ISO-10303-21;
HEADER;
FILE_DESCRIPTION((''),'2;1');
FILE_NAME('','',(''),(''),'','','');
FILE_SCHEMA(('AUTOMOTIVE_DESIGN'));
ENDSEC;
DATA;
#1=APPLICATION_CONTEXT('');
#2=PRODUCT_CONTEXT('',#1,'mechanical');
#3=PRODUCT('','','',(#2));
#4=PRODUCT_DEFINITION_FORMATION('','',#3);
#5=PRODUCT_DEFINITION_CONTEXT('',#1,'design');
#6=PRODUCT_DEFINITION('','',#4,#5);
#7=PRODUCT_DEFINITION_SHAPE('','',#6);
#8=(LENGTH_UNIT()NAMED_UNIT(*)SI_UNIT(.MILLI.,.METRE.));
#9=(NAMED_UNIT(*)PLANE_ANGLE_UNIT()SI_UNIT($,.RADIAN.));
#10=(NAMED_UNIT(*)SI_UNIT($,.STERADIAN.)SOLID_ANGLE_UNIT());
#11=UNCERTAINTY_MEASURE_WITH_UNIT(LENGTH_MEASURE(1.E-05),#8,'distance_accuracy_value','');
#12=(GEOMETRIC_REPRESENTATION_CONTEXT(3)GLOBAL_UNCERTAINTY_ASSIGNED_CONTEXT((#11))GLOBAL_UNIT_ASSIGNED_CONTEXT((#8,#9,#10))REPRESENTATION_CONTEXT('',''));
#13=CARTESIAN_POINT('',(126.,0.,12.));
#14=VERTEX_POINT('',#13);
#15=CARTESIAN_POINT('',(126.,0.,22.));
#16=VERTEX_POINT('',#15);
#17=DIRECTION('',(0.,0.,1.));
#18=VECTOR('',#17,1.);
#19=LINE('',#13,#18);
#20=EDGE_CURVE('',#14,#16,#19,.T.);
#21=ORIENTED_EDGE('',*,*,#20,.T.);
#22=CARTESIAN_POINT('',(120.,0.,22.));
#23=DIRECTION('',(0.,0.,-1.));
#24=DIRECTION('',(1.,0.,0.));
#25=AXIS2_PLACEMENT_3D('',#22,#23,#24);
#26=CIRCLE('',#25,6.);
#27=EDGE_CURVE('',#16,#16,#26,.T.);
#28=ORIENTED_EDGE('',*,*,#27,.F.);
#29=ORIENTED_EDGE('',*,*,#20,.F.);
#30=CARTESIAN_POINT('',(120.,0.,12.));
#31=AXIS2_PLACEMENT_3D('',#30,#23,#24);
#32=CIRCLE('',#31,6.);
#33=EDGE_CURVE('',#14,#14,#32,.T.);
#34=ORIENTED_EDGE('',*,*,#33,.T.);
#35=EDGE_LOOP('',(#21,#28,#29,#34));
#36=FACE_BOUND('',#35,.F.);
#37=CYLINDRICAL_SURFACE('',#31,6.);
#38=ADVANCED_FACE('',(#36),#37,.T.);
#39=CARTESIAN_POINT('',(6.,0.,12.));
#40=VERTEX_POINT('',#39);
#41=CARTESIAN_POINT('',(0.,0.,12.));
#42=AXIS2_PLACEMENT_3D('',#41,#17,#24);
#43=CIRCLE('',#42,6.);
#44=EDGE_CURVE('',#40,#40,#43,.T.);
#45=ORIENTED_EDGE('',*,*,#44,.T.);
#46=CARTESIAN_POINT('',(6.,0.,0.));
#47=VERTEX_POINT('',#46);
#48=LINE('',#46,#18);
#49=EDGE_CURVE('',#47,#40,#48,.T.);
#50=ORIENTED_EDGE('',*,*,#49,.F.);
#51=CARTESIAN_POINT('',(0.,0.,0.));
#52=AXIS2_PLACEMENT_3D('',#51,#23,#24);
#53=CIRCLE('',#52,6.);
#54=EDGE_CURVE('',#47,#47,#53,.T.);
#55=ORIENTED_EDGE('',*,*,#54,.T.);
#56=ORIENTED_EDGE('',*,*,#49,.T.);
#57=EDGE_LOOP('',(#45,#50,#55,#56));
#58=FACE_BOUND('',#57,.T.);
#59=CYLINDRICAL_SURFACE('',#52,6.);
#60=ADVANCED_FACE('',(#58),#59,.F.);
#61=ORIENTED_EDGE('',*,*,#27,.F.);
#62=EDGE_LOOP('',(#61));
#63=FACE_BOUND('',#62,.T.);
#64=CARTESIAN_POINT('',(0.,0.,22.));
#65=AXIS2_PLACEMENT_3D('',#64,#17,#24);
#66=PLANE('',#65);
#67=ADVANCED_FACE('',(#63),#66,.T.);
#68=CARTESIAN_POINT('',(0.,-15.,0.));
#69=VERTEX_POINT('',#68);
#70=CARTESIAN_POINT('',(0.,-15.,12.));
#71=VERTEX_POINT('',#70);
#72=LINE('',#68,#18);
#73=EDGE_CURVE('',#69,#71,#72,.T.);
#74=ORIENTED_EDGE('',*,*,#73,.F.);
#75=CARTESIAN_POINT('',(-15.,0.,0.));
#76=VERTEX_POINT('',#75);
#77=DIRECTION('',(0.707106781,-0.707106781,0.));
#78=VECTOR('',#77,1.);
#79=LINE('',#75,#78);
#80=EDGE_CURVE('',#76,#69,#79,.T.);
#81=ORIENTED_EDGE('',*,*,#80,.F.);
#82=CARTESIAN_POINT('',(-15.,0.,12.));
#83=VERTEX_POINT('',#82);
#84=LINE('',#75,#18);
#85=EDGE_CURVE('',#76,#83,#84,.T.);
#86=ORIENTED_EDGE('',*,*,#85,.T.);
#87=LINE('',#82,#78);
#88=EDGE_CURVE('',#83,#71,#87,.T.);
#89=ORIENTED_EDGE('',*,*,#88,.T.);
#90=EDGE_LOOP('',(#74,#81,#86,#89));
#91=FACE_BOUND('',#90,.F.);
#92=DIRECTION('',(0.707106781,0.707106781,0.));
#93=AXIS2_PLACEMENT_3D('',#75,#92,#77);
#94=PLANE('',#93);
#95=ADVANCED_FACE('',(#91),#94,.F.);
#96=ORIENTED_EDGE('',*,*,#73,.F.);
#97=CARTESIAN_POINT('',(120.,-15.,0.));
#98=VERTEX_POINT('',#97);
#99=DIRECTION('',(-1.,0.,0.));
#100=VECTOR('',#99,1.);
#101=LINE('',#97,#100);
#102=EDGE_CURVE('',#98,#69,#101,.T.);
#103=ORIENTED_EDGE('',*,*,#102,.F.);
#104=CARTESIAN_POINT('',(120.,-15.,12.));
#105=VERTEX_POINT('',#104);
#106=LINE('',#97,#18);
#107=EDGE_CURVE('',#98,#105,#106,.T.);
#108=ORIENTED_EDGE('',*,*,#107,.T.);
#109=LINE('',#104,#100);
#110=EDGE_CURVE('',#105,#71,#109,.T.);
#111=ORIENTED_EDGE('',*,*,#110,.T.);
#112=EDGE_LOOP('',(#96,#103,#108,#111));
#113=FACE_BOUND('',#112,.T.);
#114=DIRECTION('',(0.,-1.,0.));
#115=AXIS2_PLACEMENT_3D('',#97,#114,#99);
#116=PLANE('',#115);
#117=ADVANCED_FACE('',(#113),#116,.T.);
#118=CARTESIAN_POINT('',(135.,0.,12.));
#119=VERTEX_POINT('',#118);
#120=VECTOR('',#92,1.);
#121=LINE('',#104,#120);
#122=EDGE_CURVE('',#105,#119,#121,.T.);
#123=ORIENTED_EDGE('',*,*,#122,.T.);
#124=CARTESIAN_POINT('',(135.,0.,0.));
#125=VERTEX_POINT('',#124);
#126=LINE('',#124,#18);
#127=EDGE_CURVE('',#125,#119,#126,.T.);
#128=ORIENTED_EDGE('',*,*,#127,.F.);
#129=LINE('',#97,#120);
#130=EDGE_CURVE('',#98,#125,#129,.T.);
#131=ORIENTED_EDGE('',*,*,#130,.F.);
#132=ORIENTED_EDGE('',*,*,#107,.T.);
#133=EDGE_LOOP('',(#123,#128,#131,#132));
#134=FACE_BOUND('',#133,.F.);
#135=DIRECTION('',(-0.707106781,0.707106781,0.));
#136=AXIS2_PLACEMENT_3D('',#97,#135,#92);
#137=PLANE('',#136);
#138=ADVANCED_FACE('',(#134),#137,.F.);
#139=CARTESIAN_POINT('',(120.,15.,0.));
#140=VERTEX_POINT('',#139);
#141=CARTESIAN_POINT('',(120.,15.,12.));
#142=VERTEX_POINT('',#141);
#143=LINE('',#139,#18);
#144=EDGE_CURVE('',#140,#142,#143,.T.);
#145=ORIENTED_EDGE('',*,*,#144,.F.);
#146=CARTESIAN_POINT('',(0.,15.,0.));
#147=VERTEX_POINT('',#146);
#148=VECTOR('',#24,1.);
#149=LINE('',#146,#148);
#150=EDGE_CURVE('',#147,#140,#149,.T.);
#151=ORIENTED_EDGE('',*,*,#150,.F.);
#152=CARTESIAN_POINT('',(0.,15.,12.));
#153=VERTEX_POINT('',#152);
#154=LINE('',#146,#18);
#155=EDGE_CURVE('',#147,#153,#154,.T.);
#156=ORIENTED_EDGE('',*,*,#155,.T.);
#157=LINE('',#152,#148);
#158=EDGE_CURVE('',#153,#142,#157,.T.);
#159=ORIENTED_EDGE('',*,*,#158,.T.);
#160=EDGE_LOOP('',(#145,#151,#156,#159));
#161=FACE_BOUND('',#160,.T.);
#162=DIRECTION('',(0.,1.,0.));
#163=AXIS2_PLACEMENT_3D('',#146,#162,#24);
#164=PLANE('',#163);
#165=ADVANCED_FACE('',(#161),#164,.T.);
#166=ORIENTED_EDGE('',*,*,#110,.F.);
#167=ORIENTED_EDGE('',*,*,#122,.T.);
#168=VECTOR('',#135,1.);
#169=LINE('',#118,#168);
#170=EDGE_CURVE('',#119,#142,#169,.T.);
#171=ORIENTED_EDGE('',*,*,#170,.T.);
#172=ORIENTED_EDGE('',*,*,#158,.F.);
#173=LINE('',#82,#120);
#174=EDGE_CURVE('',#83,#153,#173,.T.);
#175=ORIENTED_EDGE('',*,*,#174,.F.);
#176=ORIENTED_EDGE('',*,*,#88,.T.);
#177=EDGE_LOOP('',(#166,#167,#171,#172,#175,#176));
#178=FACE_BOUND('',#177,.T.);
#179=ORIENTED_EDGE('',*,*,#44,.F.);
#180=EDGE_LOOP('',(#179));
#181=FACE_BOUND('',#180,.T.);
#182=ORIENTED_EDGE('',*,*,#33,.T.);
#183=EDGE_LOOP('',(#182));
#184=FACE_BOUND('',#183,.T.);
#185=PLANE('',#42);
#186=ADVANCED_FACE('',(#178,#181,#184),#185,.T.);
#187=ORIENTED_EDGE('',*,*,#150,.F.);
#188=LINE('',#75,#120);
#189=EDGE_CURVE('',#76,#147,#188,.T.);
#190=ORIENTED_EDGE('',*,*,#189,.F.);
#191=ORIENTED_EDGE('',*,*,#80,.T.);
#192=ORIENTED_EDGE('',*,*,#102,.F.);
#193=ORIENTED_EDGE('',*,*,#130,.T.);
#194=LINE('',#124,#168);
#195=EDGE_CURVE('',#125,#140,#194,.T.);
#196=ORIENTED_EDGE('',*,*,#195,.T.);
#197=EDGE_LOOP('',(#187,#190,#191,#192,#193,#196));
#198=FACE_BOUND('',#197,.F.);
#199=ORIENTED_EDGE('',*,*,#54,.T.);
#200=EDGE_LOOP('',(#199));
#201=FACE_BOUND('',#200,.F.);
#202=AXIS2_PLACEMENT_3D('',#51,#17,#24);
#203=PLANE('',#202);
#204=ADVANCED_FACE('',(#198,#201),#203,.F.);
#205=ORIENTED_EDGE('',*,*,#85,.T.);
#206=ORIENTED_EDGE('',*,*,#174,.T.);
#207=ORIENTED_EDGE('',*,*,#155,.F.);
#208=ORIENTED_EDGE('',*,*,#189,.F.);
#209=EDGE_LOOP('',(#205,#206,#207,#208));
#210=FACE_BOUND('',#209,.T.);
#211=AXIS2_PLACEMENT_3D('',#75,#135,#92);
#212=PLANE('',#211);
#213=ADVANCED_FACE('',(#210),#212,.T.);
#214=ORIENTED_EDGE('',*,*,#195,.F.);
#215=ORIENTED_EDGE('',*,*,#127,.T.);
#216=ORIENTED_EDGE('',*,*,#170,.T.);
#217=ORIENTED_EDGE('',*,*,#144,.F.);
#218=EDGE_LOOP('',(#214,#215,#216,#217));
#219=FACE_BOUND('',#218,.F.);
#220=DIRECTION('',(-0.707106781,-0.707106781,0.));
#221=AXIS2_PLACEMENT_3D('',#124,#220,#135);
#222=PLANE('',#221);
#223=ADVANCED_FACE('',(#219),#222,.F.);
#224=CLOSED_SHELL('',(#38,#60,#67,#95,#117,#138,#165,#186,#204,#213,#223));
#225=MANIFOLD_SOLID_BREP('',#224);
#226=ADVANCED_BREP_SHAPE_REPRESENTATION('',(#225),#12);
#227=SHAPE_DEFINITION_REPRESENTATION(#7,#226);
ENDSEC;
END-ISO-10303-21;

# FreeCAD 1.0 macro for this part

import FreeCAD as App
import Part
import Sketcher

V = App.Vector
Q = App.Units.Quantity


def add_polygon(sketch, points):
    """Adds a closed chain of lines whose ends are joined by coincident constraints."""
    first, n = sketch.GeometryCount, len(points)
    for a, b in zip(points, points[1:] + points[:1]):
        sketch.addGeometry(Part.LineSegment(App.Vector(*a, 0), App.Vector(*b, 0)), False)
    for i in range(n):
        sketch.addConstraint(Sketcher.Constraint("Coincident", first + i, 2, first + (i + 1) % n, 1))

doc = App.newDocument("Part")
body = doc.addObject("PartDesign::Body", "Body")

sketch1 = doc.addObject("Sketcher::SketchObject", "Sketch")
body.addObject(sketch1)
sketch1.AttachmentSupport = (doc.XY_Plane, [""])
sketch1.MapMode = "FlatFace"
add_polygon(sketch1, [(120, 15), (0, 15), (-15, 0), (0, -15), (120, -15), (135, 0)])
sketch1.addGeometry(Part.Circle(V(0, 0, 0), V(0, 0, 1), 6), False)
sketch1.addConstraint([
    Sketcher.Constraint("Horizontal", 0),
    Sketcher.Constraint("Horizontal", 3),
    Sketcher.Constraint("Coincident", 6, 3, -1, 1),
    Sketcher.Constraint("Symmetric", 0, 2, 2, 2, -1, 1),
    Sketcher.Constraint("PointOnObject", 0, 2, -2),
    Sketcher.Constraint("PointOnObject", 1, 2, -1),
    Sketcher.Constraint("PointOnObject", 4, 2, -1),
    Sketcher.Constraint("Perpendicular", 1, 2),
    Sketcher.Constraint("Perpendicular", 2, 4),
    Sketcher.Constraint("Perpendicular", 4, 5),
    Sketcher.Constraint("Diameter", 6, Q("12 mm")),
    Sketcher.Constraint("DistanceX", 0, 2, 0, 1, Q("120 mm")),
    Sketcher.Constraint("DistanceY", -1, 1, 0, 2, Q("15 mm")),
])
pad1 = doc.addObject("PartDesign::Pad", "Pad")
body.addObject(pad1)
pad1.Profile = sketch1
pad1.Length = 12

sketch2 = doc.addObject("Sketcher::SketchObject", "Sketch001")
body.addObject(sketch2)
sketch2.AttachmentSupport = (doc.XY_Plane, [""])
sketch2.MapMode = "FlatFace"
sketch2.AttachmentOffset = App.Placement(V(0, 0, 12), App.Rotation())
sketch2.addGeometry(Part.Circle(V(120, 0, 0), V(0, 0, 1), 6), False)
sketch2.addConstraint([
    Sketcher.Constraint("PointOnObject", 0, 3, -1),
    Sketcher.Constraint("Diameter", 0, Q("12 mm")),
    Sketcher.Constraint("DistanceX", -1, 1, 0, 3, Q("120 mm")),
])
pad2 = doc.addObject("PartDesign::Pad", "Pad001")
body.addObject(pad2)
pad2.Profile = sketch2
pad2.Length = 10

doc.recompute()
